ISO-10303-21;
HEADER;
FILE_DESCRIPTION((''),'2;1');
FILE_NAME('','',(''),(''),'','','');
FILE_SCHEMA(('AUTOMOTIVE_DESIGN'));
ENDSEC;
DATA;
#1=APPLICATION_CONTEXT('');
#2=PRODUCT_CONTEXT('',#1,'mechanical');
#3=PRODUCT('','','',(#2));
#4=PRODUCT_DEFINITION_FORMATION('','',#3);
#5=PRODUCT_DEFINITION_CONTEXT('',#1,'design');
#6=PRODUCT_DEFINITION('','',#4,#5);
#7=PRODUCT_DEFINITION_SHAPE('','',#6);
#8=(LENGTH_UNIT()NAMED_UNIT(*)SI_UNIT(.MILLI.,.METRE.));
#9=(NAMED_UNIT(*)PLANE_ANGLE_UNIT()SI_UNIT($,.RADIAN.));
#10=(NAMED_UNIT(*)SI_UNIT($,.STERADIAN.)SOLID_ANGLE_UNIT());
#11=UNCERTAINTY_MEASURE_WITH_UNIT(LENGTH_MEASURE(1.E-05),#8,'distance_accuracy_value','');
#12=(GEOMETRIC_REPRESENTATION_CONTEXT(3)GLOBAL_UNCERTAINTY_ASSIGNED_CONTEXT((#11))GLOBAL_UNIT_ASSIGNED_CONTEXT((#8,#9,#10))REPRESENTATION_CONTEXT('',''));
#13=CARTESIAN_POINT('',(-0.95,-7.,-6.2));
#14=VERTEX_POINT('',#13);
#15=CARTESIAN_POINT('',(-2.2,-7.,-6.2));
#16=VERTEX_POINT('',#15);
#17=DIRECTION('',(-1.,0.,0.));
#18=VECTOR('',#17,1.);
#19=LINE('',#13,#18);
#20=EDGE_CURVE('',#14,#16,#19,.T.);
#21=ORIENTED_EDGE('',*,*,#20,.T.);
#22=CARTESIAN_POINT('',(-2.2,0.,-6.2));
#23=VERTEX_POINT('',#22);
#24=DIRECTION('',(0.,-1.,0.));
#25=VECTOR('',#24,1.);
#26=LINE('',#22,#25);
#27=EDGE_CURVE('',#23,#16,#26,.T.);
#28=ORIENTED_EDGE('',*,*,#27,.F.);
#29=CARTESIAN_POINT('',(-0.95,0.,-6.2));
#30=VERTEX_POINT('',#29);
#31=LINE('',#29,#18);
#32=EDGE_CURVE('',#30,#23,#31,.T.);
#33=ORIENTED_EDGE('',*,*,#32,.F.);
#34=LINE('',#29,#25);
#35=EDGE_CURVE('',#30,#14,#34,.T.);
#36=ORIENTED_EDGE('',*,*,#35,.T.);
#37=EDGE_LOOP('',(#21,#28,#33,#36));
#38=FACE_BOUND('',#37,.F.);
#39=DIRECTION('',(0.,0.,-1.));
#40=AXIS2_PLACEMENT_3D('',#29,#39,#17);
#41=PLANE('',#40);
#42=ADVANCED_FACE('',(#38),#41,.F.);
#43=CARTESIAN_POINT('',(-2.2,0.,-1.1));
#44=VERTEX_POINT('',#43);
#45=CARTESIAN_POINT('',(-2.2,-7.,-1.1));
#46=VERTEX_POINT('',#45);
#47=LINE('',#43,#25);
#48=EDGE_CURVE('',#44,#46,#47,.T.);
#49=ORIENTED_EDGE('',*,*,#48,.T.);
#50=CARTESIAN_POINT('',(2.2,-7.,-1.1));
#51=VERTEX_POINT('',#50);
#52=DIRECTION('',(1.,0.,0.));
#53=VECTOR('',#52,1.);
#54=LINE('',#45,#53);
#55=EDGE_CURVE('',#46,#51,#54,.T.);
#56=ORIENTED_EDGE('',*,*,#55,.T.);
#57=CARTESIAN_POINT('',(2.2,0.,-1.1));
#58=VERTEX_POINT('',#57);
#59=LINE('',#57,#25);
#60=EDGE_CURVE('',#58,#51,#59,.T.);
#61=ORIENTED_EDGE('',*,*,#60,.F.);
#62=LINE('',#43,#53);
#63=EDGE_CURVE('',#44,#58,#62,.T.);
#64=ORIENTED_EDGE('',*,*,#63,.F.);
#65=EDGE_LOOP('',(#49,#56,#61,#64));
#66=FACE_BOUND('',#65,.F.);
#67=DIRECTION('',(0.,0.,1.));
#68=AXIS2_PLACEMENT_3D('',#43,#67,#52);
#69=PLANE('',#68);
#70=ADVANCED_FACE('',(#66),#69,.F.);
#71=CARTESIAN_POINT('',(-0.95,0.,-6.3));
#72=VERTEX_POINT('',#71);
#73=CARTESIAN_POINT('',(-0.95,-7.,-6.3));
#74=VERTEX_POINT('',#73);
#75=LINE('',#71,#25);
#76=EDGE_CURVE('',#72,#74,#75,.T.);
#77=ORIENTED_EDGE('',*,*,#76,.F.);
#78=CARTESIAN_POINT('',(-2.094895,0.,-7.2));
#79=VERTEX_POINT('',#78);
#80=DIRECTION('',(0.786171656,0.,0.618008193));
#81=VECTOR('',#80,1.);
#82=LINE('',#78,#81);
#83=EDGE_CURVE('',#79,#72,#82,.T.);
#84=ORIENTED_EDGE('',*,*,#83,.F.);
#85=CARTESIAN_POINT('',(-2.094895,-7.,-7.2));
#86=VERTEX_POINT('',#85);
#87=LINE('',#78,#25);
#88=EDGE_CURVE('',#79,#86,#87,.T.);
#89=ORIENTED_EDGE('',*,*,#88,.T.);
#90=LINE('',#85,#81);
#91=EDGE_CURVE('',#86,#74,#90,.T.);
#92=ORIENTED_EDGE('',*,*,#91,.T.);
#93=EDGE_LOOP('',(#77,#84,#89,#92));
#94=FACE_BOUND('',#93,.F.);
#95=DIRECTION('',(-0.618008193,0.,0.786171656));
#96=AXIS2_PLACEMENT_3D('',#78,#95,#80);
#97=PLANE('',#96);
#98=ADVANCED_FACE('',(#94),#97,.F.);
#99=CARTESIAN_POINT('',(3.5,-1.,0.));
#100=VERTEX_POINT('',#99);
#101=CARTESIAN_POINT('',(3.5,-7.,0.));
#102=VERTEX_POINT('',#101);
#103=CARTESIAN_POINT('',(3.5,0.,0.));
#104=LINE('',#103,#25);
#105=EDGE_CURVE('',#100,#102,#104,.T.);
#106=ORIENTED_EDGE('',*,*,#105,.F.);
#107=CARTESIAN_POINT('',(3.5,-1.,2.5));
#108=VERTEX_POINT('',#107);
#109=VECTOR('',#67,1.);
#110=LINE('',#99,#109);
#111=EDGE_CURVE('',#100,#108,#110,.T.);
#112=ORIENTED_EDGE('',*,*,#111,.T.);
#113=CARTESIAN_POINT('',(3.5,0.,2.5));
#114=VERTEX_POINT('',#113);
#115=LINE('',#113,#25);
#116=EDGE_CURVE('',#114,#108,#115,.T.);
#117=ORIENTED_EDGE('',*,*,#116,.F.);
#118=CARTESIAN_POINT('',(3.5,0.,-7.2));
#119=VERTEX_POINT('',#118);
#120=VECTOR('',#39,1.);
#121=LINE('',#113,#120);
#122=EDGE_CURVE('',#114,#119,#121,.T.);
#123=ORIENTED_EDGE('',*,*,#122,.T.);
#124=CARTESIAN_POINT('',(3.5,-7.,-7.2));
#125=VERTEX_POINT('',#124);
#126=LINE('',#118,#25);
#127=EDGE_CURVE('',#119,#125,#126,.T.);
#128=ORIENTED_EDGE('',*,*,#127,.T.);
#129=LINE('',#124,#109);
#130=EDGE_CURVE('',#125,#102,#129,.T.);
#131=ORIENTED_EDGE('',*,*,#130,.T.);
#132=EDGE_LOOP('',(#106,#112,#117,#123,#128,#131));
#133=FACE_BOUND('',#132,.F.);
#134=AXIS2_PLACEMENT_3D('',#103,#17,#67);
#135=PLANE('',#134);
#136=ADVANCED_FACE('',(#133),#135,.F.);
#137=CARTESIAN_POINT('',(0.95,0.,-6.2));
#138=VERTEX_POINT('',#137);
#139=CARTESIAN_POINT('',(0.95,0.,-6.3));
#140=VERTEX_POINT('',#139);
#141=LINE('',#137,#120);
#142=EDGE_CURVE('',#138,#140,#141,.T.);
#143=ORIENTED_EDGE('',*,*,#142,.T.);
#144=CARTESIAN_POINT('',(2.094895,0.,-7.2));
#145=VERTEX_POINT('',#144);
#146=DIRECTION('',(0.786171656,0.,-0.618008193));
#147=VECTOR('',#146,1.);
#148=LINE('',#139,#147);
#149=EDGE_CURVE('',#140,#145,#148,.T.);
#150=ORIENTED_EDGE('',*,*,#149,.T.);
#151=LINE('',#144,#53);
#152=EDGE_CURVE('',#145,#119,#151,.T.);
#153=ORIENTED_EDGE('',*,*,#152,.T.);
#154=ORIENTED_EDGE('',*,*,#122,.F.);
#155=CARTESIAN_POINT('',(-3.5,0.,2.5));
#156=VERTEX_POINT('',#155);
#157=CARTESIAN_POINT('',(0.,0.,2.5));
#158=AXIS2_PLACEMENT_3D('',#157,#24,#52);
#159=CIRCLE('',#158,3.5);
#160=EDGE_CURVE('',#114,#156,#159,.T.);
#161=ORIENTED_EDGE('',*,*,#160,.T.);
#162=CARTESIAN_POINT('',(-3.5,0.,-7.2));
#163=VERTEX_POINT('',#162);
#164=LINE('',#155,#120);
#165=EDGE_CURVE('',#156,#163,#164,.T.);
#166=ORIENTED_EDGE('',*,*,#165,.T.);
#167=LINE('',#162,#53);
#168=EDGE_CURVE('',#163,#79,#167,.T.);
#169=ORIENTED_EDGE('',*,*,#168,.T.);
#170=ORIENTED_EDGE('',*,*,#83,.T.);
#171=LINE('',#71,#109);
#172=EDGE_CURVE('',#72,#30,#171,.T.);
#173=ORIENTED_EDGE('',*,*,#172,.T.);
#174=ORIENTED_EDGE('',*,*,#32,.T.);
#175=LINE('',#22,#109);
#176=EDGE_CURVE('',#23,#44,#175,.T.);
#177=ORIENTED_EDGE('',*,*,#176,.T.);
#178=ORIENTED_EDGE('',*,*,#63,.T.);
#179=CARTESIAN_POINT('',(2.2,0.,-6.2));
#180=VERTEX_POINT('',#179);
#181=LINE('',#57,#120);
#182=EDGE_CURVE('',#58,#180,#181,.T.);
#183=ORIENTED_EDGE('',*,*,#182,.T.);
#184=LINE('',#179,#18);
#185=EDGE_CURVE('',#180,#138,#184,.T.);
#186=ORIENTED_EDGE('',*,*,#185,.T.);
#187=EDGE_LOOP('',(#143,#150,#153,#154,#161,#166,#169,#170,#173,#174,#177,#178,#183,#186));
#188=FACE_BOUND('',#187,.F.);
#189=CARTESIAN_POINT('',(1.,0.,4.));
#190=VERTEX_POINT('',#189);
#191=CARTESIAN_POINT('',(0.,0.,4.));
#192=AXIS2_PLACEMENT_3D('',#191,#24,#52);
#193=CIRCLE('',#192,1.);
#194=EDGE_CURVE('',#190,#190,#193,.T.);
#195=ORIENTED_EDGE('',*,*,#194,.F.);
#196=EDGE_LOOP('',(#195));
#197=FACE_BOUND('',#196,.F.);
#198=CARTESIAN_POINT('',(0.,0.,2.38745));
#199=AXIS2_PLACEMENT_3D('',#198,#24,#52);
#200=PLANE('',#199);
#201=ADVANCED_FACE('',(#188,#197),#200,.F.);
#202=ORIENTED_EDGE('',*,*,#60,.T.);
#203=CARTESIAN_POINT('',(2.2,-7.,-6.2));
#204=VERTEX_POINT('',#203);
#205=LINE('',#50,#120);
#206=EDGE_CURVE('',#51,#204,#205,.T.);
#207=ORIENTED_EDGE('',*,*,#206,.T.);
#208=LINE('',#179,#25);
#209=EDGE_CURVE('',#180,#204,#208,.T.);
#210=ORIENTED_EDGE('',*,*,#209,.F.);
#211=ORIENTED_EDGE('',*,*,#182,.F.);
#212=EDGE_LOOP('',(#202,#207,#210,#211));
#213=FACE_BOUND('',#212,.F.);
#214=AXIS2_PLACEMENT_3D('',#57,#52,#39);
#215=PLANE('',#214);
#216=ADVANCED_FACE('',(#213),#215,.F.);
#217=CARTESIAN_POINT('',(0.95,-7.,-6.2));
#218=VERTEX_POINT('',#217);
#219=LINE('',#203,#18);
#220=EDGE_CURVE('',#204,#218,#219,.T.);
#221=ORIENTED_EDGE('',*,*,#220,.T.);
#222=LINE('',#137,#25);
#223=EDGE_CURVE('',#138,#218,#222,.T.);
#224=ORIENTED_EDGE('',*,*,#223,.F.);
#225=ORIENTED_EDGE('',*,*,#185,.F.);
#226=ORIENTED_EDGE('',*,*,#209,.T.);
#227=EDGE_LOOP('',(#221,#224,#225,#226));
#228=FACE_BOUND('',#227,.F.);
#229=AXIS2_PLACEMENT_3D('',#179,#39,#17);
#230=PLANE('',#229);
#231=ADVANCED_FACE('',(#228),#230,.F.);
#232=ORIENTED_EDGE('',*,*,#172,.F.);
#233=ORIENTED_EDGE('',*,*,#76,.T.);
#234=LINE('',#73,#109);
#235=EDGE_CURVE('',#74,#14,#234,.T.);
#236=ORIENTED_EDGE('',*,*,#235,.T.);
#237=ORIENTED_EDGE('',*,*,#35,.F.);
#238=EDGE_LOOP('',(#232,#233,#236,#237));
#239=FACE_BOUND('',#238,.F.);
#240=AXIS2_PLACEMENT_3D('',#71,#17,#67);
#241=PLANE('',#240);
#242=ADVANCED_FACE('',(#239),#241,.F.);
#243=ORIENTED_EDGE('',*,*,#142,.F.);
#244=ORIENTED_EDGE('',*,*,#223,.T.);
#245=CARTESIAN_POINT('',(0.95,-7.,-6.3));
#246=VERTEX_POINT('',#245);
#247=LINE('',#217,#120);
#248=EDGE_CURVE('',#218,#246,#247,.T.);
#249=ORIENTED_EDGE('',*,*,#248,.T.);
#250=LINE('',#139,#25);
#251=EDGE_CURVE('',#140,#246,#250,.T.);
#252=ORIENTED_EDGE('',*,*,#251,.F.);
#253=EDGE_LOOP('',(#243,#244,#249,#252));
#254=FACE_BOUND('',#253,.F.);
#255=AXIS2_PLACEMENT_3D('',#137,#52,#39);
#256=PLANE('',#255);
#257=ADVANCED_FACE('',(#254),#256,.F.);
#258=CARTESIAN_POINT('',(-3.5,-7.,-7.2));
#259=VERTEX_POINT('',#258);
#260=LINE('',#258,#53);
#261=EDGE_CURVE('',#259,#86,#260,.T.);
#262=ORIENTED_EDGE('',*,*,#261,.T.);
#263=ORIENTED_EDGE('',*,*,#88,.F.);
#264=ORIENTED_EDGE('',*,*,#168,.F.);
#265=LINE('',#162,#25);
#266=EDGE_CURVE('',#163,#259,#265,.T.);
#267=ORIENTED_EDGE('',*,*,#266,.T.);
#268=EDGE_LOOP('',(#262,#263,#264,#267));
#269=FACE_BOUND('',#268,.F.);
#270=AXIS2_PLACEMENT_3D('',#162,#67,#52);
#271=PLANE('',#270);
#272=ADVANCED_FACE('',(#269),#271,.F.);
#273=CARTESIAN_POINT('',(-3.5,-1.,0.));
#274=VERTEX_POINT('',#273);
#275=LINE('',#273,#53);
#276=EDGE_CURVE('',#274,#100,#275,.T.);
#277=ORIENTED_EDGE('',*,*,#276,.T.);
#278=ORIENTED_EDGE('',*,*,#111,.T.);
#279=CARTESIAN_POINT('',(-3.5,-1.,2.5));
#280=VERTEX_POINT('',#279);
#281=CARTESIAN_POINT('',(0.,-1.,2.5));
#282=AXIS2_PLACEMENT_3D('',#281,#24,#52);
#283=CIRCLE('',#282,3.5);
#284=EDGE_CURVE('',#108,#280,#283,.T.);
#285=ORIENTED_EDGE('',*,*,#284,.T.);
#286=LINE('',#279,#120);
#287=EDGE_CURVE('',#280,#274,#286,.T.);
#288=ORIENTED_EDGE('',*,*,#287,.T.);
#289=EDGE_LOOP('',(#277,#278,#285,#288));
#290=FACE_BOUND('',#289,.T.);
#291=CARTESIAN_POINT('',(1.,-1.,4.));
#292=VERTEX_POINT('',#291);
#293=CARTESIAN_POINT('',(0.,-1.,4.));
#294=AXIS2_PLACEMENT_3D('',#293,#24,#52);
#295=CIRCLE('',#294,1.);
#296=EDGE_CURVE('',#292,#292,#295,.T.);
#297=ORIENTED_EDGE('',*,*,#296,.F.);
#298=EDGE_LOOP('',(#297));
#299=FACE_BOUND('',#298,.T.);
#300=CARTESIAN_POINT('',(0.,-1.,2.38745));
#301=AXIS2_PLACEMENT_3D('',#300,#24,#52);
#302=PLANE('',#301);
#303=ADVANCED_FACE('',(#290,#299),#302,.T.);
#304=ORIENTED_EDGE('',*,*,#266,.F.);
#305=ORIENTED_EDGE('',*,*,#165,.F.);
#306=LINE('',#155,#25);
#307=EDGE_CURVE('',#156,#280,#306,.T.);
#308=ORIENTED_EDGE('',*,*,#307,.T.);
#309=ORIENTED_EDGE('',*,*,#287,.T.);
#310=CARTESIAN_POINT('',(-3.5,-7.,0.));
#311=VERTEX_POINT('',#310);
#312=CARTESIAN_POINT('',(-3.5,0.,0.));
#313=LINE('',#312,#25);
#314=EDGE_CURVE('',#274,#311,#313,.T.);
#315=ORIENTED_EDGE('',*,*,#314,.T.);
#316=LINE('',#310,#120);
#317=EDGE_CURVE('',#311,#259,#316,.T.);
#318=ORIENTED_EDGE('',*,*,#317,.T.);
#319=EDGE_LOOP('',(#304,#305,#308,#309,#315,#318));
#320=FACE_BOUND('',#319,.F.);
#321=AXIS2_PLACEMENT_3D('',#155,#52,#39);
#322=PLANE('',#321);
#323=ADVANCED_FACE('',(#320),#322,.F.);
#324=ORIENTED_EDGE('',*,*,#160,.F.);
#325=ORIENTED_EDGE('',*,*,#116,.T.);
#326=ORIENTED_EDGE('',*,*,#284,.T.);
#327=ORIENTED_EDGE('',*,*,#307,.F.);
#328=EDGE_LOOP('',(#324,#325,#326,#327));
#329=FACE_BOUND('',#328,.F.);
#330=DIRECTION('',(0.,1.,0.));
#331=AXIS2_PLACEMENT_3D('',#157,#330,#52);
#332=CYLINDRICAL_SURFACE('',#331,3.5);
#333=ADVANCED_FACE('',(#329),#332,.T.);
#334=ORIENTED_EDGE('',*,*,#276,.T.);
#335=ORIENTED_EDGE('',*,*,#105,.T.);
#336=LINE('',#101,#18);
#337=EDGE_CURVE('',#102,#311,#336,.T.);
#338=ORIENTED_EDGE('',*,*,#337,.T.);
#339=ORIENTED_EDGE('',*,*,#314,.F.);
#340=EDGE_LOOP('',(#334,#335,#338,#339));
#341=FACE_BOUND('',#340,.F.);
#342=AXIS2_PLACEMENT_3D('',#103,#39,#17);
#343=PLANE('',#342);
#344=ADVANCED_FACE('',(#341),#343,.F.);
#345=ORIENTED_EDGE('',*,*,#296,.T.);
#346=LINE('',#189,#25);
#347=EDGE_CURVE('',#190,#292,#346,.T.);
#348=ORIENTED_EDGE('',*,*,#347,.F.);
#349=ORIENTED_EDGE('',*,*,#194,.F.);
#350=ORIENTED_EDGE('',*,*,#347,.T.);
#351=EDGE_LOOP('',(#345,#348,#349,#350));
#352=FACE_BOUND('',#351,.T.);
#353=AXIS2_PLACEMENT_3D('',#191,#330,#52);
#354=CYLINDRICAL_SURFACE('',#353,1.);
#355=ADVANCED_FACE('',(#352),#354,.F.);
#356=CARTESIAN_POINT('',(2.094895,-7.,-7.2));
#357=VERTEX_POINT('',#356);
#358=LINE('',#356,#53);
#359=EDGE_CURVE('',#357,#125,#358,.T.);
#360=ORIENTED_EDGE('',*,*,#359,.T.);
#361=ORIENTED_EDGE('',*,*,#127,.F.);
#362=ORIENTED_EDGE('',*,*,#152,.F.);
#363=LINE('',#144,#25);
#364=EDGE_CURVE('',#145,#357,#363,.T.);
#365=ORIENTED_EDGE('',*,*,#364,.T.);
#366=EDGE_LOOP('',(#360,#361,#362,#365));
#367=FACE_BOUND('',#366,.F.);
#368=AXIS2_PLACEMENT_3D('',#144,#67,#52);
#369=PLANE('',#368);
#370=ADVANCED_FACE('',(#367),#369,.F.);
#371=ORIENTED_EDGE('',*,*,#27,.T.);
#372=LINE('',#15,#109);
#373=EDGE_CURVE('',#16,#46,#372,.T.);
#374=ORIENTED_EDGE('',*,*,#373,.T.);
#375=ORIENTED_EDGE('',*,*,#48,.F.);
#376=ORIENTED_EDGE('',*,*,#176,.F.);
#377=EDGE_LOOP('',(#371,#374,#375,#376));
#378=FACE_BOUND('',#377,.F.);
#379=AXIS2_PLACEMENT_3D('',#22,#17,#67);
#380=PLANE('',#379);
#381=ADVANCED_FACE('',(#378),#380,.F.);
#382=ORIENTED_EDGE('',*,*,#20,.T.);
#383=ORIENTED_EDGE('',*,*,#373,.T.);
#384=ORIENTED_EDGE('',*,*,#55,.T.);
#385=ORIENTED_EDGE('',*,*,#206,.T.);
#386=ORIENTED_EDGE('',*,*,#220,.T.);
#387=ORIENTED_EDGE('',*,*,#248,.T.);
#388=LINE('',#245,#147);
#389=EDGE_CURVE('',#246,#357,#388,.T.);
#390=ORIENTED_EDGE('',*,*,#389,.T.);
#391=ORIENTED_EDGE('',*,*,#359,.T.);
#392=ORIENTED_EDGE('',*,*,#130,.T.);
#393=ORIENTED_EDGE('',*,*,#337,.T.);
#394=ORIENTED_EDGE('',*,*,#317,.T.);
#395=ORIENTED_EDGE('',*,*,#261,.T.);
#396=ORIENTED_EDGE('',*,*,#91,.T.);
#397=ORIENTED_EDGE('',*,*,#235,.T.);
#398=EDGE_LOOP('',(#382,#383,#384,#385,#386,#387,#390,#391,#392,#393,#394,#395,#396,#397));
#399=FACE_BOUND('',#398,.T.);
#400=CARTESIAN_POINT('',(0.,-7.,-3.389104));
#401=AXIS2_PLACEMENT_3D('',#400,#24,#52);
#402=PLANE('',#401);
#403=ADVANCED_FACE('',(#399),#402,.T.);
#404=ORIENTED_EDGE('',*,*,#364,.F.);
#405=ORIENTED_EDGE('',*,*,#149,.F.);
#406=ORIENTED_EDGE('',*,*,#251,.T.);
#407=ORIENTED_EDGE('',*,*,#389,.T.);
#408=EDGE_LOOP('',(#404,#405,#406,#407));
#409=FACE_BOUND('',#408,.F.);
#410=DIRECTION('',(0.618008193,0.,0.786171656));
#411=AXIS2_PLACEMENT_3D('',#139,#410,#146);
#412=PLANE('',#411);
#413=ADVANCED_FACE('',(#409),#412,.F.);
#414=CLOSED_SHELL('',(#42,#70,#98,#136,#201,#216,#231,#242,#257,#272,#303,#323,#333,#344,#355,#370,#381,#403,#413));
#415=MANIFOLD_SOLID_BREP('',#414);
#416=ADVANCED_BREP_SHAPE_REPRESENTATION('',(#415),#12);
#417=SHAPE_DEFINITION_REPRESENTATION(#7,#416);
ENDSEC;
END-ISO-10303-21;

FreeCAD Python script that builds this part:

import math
import FreeCAD as App
import Part
import Sketcher
from FreeCAD import Vector

doc = App.newDocument("Part")
params = doc.addObject("Spreadsheet::Sheet", "Params")
for row, (alias, value) in enumerate([
    ("sketch1_width", "7 mm"),
    ("sketch1_width2", "4.4 mm"),
    ("sketch1_height", "5.1 mm"),
    ("sketch1_height2", "0.1 mm"),
    ("sketch1_height3", "7.2 mm"),
    ("pad1_length", "7 mm"),
    ("sketch2_diameter", "2 mm"),
    ("sketch2_radius", "3.5 mm"),
    ("sketch2_height", "2.5 mm"),
    ("pad2_length", "1 mm"),
], start=1):
    params.set(f"A{row}", alias)
    params.set(f"B{row}", "=" + value)
    params.setAlias(f"B{row}", alias)

body = doc.addObject("PartDesign::Body", "Body")

sketch1 = body.newObject("Sketcher::SketchObject", "Sketch")
sketch1.AttachmentSupport = (doc.getObject("XZ_Plane"), [""])
sketch1.MapMode = "FlatFace"
sketch1.addGeometry([
    Part.LineSegment(Vector(-0.95, -6.2, 0), Vector(-2.2, -6.2, 0)),
    Part.LineSegment(Vector(-2.2, -6.2, 0), Vector(-2.2, -1.1, 0)),
    Part.LineSegment(Vector(-2.2, -1.1, 0), Vector(2.2, -1.1, 0)),
    Part.LineSegment(Vector(2.2, -1.1, 0), Vector(2.2, -6.2, 0)),
    Part.LineSegment(Vector(2.2, -6.2, 0), Vector(0.95, -6.2, 0)),
    Part.LineSegment(Vector(0.95, -6.2, 0), Vector(0.95, -6.3, 0)),
    Part.LineSegment(Vector(0.95, -6.3, 0), Vector(2.09, -7.2, 0)),
    Part.LineSegment(Vector(2.09, -7.2, 0), Vector(3.5, -7.2, 0)),
    Part.LineSegment(Vector(3.5, -7.2, 0), Vector(3.5, 0, 0)),
    Part.LineSegment(Vector(3.5, 0, 0), Vector(-3.5, 0, 0)),
    Part.LineSegment(Vector(-3.5, 0, 0), Vector(-3.5, -7.2, 0)),
    Part.LineSegment(Vector(-3.5, -7.2, 0), Vector(-2.09, -7.2, 0)),
    Part.LineSegment(Vector(-2.09, -7.2, 0), Vector(-0.95, -6.3, 0)),
    Part.LineSegment(Vector(-0.95, -6.3, 0), Vector(-0.95, -6.2, 0)),
], False)
sketch1.addConstraint([
    Sketcher.Constraint("Coincident", 0, 2, 1, 1),
    Sketcher.Constraint("Coincident", 1, 2, 2, 1),
    Sketcher.Constraint("Coincident", 2, 2, 3, 1),
    Sketcher.Constraint("Coincident", 3, 2, 4, 1),
    Sketcher.Constraint("Coincident", 4, 2, 5, 1),
    Sketcher.Constraint("Coincident", 5, 2, 6, 1),
    Sketcher.Constraint("Coincident", 6, 2, 7, 1),
    Sketcher.Constraint("Coincident", 7, 2, 8, 1),
    Sketcher.Constraint("Coincident", 8, 2, 9, 1),
    Sketcher.Constraint("Coincident", 9, 2, 10, 1),
    Sketcher.Constraint("Coincident", 10, 2, 11, 1),
    Sketcher.Constraint("Coincident", 11, 2, 12, 1),
    Sketcher.Constraint("Coincident", 12, 2, 13, 1),
    Sketcher.Constraint("Coincident", 13, 2, 0, 1),
    Sketcher.Constraint("Horizontal", 0),
    Sketcher.Constraint("Vertical", 1),
    Sketcher.Constraint("Horizontal", 2),
    Sketcher.Constraint("Vertical", 3),
    Sketcher.Constraint("Horizontal", 4),
    Sketcher.Constraint("Vertical", 5),
    Sketcher.Constraint("Horizontal", 7),
    Sketcher.Constraint("Vertical", 8),
    Sketcher.Constraint("Horizontal", 9),
    Sketcher.Constraint("Vertical", 10),
    Sketcher.Constraint("Horizontal", 11),
    Sketcher.Constraint("Vertical", 13),
    Sketcher.Constraint("Symmetric", 8, 2, 9, 2, -1, 1),
    Sketcher.Constraint("Symmetric", 0, 2, 3, 2, -2),
    Sketcher.Constraint("Symmetric", 6, 2, 11, 2, -2),
    Sketcher.Constraint("Symmetric", 5, 2, 12, 2, -2),
    Sketcher.Constraint("DistanceX", 9, 2, 9, 1, 7.0),
    Sketcher.Constraint("DistanceX", 2, 1, 2, 2, 4.4),
    Sketcher.Constraint("DistanceY", 1, 1, 1, 2, 5.1),
    Sketcher.Constraint("DistanceY", 5, 2, 5, 1, 0.1),
    Sketcher.Constraint("DistanceY", 8, 1, 8, 2, 7.2),
    Sketcher.Constraint("DistanceY", 6, 2, 3, 2, 1.0),
    Sketcher.Constraint("DistanceX", 0, 2, 0, 1, 1.25),
    Sketcher.Constraint("Distance", 6, 1.456291),
])
sketch1.setExpression("Constraints[30]", "Params.sketch1_width")
sketch1.setExpression("Constraints[31]", "Params.sketch1_width2")
sketch1.setExpression("Constraints[32]", "Params.sketch1_height")
sketch1.setExpression("Constraints[33]", "Params.sketch1_height2")
sketch1.setExpression("Constraints[34]", "Params.sketch1_height3")
pad1 = body.newObject("PartDesign::Pad", "Pad")
pad1.Profile = sketch1
pad1.setExpression("Length", "Params.pad1_length")

sketch2 = body.newObject("Sketcher::SketchObject", "Sketch001")
sketch2.AttachmentSupport = (doc.getObject("XZ_Plane"), [""])
sketch2.MapMode = "FlatFace"
sketch2.addGeometry([
    Part.LineSegment(Vector(-3.5, 2.5, 0), Vector(-3.5, 0, 0)),
    Part.LineSegment(Vector(-3.5, 0, 0), Vector(3.5, 0, 0)),
    Part.LineSegment(Vector(3.5, 0, 0), Vector(3.5, 2.5, 0)),
    Part.ArcOfCircle(Part.Circle(Vector(0, 2.5, 0), Vector(0, 0, 1), 3.5), math.radians(0), math.radians(180)),
    Part.Circle(Vector(0, 4, 0), Vector(0, 0, 1), 1),
], False)
sketch2.addConstraint([
    Sketcher.Constraint("Coincident", 0, 2, 1, 1),
    Sketcher.Constraint("Coincident", 1, 2, 2, 1),
    Sketcher.Constraint("Tangent", 2, 2, 3, 1),
    Sketcher.Constraint("Tangent", 3, 2, 0, 1),
    Sketcher.Constraint("Vertical", 0),
    Sketcher.Constraint("Horizontal", 1),
    Sketcher.Constraint("Vertical", 2),
    Sketcher.Constraint("Symmetric", 0, 2, 1, 2, -1, 1),
    Sketcher.Constraint("PointOnObject", 4, 3, -2),
    Sketcher.Constraint("Diameter", 4, 2.0),
    Sketcher.Constraint("Radius", 3, 3.5),
    Sketcher.Constraint("DistanceY", 0, 2, 0, 1, 2.5),
    Sketcher.Constraint("DistanceY", -1, 1, 4, 3, 4.0),
])
sketch2.setExpression("Constraints[9]", "Params.sketch2_diameter")
sketch2.setExpression("Constraints[10]", "Params.sketch2_radius")
sketch2.setExpression("Constraints[11]", "Params.sketch2_height")
pad2 = body.newObject("PartDesign::Pad", "Pad001")
pad2.Profile = sketch2
pad2.setExpression("Length", "Params.pad2_length")

doc.recompute()
